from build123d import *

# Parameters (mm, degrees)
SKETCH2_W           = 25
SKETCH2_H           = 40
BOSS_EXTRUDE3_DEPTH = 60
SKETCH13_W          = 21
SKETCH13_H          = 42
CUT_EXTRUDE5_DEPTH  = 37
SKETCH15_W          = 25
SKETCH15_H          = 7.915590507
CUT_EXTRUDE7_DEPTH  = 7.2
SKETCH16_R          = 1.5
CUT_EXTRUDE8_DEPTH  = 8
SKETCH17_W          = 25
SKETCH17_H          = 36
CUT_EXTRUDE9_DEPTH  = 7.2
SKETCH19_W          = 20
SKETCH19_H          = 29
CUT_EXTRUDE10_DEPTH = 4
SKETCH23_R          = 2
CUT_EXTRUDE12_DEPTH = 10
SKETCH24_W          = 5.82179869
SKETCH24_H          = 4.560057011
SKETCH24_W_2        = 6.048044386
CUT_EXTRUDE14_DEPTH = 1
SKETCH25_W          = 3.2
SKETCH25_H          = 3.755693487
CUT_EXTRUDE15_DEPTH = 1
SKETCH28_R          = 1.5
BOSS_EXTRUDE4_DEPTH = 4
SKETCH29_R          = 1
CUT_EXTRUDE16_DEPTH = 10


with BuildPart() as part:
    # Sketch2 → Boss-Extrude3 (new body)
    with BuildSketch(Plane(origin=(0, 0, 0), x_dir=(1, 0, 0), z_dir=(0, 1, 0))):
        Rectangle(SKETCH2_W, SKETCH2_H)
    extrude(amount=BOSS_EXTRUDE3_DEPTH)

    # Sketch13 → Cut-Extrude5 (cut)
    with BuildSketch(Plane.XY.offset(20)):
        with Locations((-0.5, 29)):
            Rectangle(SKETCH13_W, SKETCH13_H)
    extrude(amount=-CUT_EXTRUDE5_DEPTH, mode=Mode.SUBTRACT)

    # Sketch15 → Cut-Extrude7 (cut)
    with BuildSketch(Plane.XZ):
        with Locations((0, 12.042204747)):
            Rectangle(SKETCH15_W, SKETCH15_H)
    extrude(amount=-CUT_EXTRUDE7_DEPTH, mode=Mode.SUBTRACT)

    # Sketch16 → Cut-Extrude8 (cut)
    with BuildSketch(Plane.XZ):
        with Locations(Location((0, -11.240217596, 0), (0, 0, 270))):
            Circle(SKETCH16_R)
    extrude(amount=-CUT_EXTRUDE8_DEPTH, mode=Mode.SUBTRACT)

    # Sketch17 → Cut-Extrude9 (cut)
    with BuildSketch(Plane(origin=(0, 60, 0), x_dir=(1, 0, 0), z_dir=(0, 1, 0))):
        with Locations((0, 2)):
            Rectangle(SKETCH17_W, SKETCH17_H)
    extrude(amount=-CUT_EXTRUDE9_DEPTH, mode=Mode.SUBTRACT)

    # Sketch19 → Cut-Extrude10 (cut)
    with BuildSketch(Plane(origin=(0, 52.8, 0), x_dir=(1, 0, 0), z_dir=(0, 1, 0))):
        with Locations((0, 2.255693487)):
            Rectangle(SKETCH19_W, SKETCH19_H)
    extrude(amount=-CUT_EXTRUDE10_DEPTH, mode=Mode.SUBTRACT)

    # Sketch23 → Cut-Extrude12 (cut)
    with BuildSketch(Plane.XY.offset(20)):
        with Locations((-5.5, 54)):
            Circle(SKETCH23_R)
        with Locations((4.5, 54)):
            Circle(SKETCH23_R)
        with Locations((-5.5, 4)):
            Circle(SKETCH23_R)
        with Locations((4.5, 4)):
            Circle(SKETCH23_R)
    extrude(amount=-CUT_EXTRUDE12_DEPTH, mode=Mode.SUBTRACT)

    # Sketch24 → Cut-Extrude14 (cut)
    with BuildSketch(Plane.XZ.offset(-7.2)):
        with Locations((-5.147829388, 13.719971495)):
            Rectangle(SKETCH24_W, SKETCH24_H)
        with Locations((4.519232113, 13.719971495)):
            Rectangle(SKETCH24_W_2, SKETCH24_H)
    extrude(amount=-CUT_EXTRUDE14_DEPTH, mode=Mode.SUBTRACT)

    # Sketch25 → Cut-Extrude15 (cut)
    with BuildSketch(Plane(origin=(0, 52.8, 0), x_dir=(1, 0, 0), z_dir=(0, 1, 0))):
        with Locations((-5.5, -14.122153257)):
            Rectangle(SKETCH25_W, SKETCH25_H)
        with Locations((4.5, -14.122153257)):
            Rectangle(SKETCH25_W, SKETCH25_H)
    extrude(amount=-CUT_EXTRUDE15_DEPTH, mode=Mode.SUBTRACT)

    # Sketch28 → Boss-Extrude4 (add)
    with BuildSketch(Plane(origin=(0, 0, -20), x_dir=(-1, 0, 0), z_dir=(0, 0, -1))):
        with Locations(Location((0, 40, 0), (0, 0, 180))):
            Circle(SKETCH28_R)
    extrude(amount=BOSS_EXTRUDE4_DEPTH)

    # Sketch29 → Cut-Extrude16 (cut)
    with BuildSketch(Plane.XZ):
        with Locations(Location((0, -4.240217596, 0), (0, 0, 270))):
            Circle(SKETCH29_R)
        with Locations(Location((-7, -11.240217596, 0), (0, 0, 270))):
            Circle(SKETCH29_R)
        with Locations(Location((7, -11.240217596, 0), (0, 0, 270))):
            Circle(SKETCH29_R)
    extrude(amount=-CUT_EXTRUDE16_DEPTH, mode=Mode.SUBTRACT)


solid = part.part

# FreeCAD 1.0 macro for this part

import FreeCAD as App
import Part
import Sketcher
from FreeCAD import Vector
Q = App.Units.Quantity

doc = App.newDocument("Part")
body = doc.addObject("PartDesign::Body", "Body")

# Sketch on XZ plane
sketch1 = body.newObject("Sketcher::SketchObject", "Sketch")
sketch1.AttachmentSupport = (doc.getObject("XZ_Plane"), [""])
sketch1.MapMode = "FlatFace"
sketch1.addGeometry(Part.LineSegment(Vector(-12.5, -20, 0), Vector(-12.5, 20, 0)), False)
sketch1.addGeometry(Part.LineSegment(Vector(-12.5, 20, 0), Vector(12.5, 20, 0)), False)
sketch1.addGeometry(Part.LineSegment(Vector(12.5, 20, 0), Vector(12.5, -20, 0)), False)
sketch1.addGeometry(Part.LineSegment(Vector(12.5, -20, 0), Vector(-12.5, -20, 0)), False)
sketch1.addConstraint(Sketcher.Constraint("Coincident", 0, 2, 1, 1))
sketch1.addConstraint(Sketcher.Constraint("Coincident", 1, 2, 2, 1))
sketch1.addConstraint(Sketcher.Constraint("Coincident", 2, 2, 3, 1))
sketch1.addConstraint(Sketcher.Constraint("Coincident", 3, 2, 0, 1))
sketch1.addConstraint(Sketcher.Constraint("Vertical", 0))
sketch1.addConstraint(Sketcher.Constraint("Horizontal", 1))
sketch1.addConstraint(Sketcher.Constraint("Vertical", 2))
sketch1.addConstraint(Sketcher.Constraint("Horizontal", 3))
sketch1.addConstraint(Sketcher.Constraint("Symmetric", 0, 2, 2, 2, -1, 1))
sketch1.addConstraint(Sketcher.Constraint("DistanceX", 1, 1, 1, 2, Q("25 mm")))
sketch1.addConstraint(Sketcher.Constraint("DistanceY", 0, 1, 0, 2, Q("40 mm")))
pad1 = body.newObject("PartDesign::Pad", "Pad")
pad1.Profile = sketch1
pad1.Length = 60
pad1.Reversed = True

# Sketch on XY plane
sketch2 = body.newObject("Sketcher::SketchObject", "Sketch001")
sketch2.AttachmentSupport = (doc.getObject("XY_Plane"), [""])
sketch2.MapMode = "FlatFace"
sketch2.AttachmentOffset = App.Placement(Vector(0, 0, 20), App.Rotation())
sketch2.addGeometry(Part.LineSegment(Vector(-11, 50, 0), Vector(-11, 8, 0)), False)
sketch2.addGeometry(Part.LineSegment(Vector(-11, 8, 0), Vector(10, 8, 0)), False)
sketch2.addGeometry(Part.LineSegment(Vector(10, 8, 0), Vector(10, 50, 0)), False)
sketch2.addGeometry(Part.LineSegment(Vector(10, 50, 0), Vector(-11, 50, 0)), False)
sketch2.addConstraint(Sketcher.Constraint("Coincident", 0, 2, 1, 1))
sketch2.addConstraint(Sketcher.Constraint("Coincident", 1, 2, 2, 1))
sketch2.addConstraint(Sketcher.Constraint("Coincident", 2, 2, 3, 1))
sketch2.addConstraint(Sketcher.Constraint("Coincident", 3, 2, 0, 1))
sketch2.addConstraint(Sketcher.Constraint("Vertical", 0))
sketch2.addConstraint(Sketcher.Constraint("Horizontal", 1))
sketch2.addConstraint(Sketcher.Constraint("Vertical", 2))
sketch2.addConstraint(Sketcher.Constraint("Horizontal", 3))
sketch2.addConstraint(Sketcher.Constraint("DistanceX", 1, 1, 1, 2, Q("21 mm")))
sketch2.addConstraint(Sketcher.Constraint("DistanceY", 0, 2, 0, 1, Q("42 mm")))
sketch2.addConstraint(Sketcher.Constraint("DistanceX", 0, 2, -1, 1, Q("11 mm")))
sketch2.addConstraint(Sketcher.Constraint("DistanceY", -1, 1, 0, 2, Q("8 mm")))
pocket1 = body.newObject("PartDesign::Pocket", "Pocket")
pocket1.Profile = sketch2
pocket1.Length = 37

# Sketch on XZ plane
sketch3 = body.newObject("Sketcher::SketchObject", "Sketch002")
sketch3.AttachmentSupport = (doc.getObject("XZ_Plane"), [""])
sketch3.MapMode = "FlatFace"
sketch3.addGeometry(Part.LineSegment(Vector(-12.5, 16, 0), Vector(-12.5, 8.084409, 0)), False)
sketch3.addGeometry(Part.LineSegment(Vector(-12.5, 8.084409, 0), Vector(12.5, 8.084409, 0)), False)
sketch3.addGeometry(Part.LineSegment(Vector(12.5, 8.084409, 0), Vector(12.5, 16, 0)), False)
sketch3.addGeometry(Part.LineSegment(Vector(12.5, 16, 0), Vector(-12.5, 16, 0)), False)
sketch3.addConstraint(Sketcher.Constraint("Coincident", 0, 2, 1, 1))
sketch3.addConstraint(Sketcher.Constraint("Coincident", 1, 2, 2, 1))
sketch3.addConstraint(Sketcher.Constraint("Coincident", 2, 2, 3, 1))
sketch3.addConstraint(Sketcher.Constraint("Coincident", 3, 2, 0, 1))
sketch3.addConstraint(Sketcher.Constraint("Vertical", 0))
sketch3.addConstraint(Sketcher.Constraint("Horizontal", 1))
sketch3.addConstraint(Sketcher.Constraint("Vertical", 2))
sketch3.addConstraint(Sketcher.Constraint("Horizontal", 3))
sketch3.addConstraint(Sketcher.Constraint("DistanceX", 1, 1, 1, 2, Q("25 mm")))
sketch3.addConstraint(Sketcher.Constraint("DistanceY", -1, 1, 2, 2, Q("16 mm")))
sketch3.addConstraint(Sketcher.Constraint("DistanceX", 0, 2, -1, 1, Q("12.5 mm")))
sketch3.addConstraint(Sketcher.Constraint("DistanceY", 0, 2, 0, 1, Q("7.915591 mm")))
pocket2 = body.newObject("PartDesign::Pocket", "Pocket001")
pocket2.Profile = sketch3
pocket2.Length = 7.2

# Sketch on XZ plane
sketch4 = body.newObject("Sketcher::SketchObject", "Sketch003")
sketch4.AttachmentSupport = (doc.getObject("XZ_Plane"), [""])
sketch4.MapMode = "FlatFace"
sketch4.addGeometry(Part.Circle(Vector(0, -11.240218, 0), Vector(0, 0, 1), 1.5), False)
sketch4.addConstraint(Sketcher.Constraint("PointOnObject", 0, 3, -2))
sketch4.addConstraint(Sketcher.Constraint("Diameter", 0, Q("3 mm")))
sketch4.addConstraint(Sketcher.Constraint("DistanceY", 0, 3, -1, 1, Q("11.240218 mm")))
pocket3 = body.newObject("PartDesign::Pocket", "Pocket002")
pocket3.Profile = sketch4
pocket3.Length = 8

# Sketch on XZ plane
sketch5 = body.newObject("Sketcher::SketchObject", "Sketch004")
sketch5.AttachmentSupport = (doc.getObject("XZ_Plane"), [""])
sketch5.MapMode = "FlatFace"
sketch5.AttachmentOffset = App.Placement(Vector(0, 0, -60), App.Rotation())
sketch5.addGeometry(Part.LineSegment(Vector(-12.5, -20, 0), Vector(-12.5, 16, 0)), False)
sketch5.addGeometry(Part.LineSegment(Vector(-12.5, 16, 0), Vector(12.5, 16, 0)), False)
sketch5.addGeometry(Part.LineSegment(Vector(12.5, 16, 0), Vector(12.5, -20, 0)), False)
sketch5.addGeometry(Part.LineSegment(Vector(12.5, -20, 0), Vector(-12.5, -20, 0)), False)
sketch5.addConstraint(Sketcher.Constraint("Coincident", 0, 2, 1, 1))
sketch5.addConstraint(Sketcher.Constraint("Coincident", 1, 2, 2, 1))
sketch5.addConstraint(Sketcher.Constraint("Coincident", 2, 2, 3, 1))
sketch5.addConstraint(Sketcher.Constraint("Coincident", 3, 2, 0, 1))
sketch5.addConstraint(Sketcher.Constraint("Vertical", 0))
sketch5.addConstraint(Sketcher.Constraint("Horizontal", 1))
sketch5.addConstraint(Sketcher.Constraint("Vertical", 2))
sketch5.addConstraint(Sketcher.Constraint("Horizontal", 3))
sketch5.addConstraint(Sketcher.Constraint("DistanceX", 1, 1, 1, 2, Q("25 mm")))
sketch5.addConstraint(Sketcher.Constraint("DistanceY", 0, 1, 0, 2, Q("36 mm")))
sketch5.addConstraint(Sketcher.Constraint("DistanceY", -1, 1, 0, 2, Q("16 mm")))
sketch5.addConstraint(Sketcher.Constraint("DistanceX", 0, 2, -1, 1, Q("12.5 mm")))
pocket4 = body.newObject("PartDesign::Pocket", "Pocket003")
pocket4.Profile = sketch5
pocket4.Length = 7.2
pocket4.Reversed = True

# Sketch on XZ plane
sketch6 = body.newObject("Sketcher::SketchObject", "Sketch005")
sketch6.AttachmentSupport = (doc.getObject("XZ_Plane"), [""])
sketch6.MapMode = "FlatFace"
sketch6.AttachmentOffset = App.Placement(Vector(0, 0, -52.8), App.Rotation())
sketch6.addGeometry(Part.LineSegment(Vector(-10, -16.755693, 0), Vector(-10, 12.244307, 0)), False)
sketch6.addGeometry(Part.LineSegment(Vector(-10, 12.244307, 0), Vector(10, 12.244307, 0)), False)
sketch6.addGeometry(Part.LineSegment(Vector(10, 12.244307, 0), Vector(10, -16.755693, 0)), False)
sketch6.addGeometry(Part.LineSegment(Vector(10, -16.755693, 0), Vector(-10, -16.755693, 0)), False)
sketch6.addConstraint(Sketcher.Constraint("Coincident", 0, 2, 1, 1))
sketch6.addConstraint(Sketcher.Constraint("Coincident", 1, 2, 2, 1))
sketch6.addConstraint(Sketcher.Constraint("Coincident", 2, 2, 3, 1))
sketch6.addConstraint(Sketcher.Constraint("Coincident", 3, 2, 0, 1))
sketch6.addConstraint(Sketcher.Constraint("Vertical", 0))
sketch6.addConstraint(Sketcher.Constraint("Horizontal", 1))
sketch6.addConstraint(Sketcher.Constraint("Vertical", 2))
sketch6.addConstraint(Sketcher.Constraint("Horizontal", 3))
sketch6.addConstraint(Sketcher.Constraint("DistanceX", 1, 1, 1, 2, Q("20 mm")))
sketch6.addConstraint(Sketcher.Constraint("DistanceY", 0, 1, 0, 2, Q("29 mm")))
sketch6.addConstraint(Sketcher.Constraint("DistanceX", 0, 2, -1, 1, Q("10 mm")))
sketch6.addConstraint(Sketcher.Constraint("DistanceY", -1, 1, 0, 2, Q("12.244307 mm")))
pocket5 = body.newObject("PartDesign::Pocket", "Pocket004")
pocket5.Profile = sketch6
pocket5.Length = 4
pocket5.Reversed = True

# Sketch on XY plane
sketch7 = body.newObject("Sketcher::SketchObject", "Sketch006")
sketch7.AttachmentSupport = (doc.getObject("XY_Plane"), [""])
sketch7.MapMode = "FlatFace"
sketch7.AttachmentOffset = App.Placement(Vector(0, 0, 20), App.Rotation())
sketch7.addGeometry(Part.Circle(Vector(-5.5, 54, 0), Vector(0, 0, 1), 2), False)
sketch7.addGeometry(Part.Circle(Vector(4.5, 54, 0), Vector(0, 0, 1), 2), False)
sketch7.addGeometry(Part.Circle(Vector(-5.5, 4, 0), Vector(0, 0, 1), 2), False)
sketch7.addGeometry(Part.Circle(Vector(4.5, 4, 0), Vector(0, 0, 1), 2), False)
sketch7.addConstraint(Sketcher.Constraint("Equal", 0, 1))
sketch7.addConstraint(Sketcher.Constraint("Equal", 1, 2))
sketch7.addConstraint(Sketcher.Constraint("Equal", 2, 3))
sketch7.addConstraint(Sketcher.Constraint("Horizontal", 0, 3, 1, 3))
sketch7.addConstraint(Sketcher.Constraint("Horizontal", 2, 3, 3, 3))
sketch7.addConstraint(Sketcher.Constraint("Vertical", 0, 3, 2, 3))
sketch7.addConstraint(Sketcher.Constraint("Vertical", 1, 3, 3, 3))
sketch7.addConstraint(Sketcher.Constraint("Diameter", 0, Q("4 mm")))
sketch7.addConstraint(Sketcher.Constraint("DistanceY", -1, 1, 0, 3, Q("54 mm")))
sketch7.addConstraint(Sketcher.Constraint("DistanceY", -1, 1, 2, 3, Q("4 mm")))
sketch7.addConstraint(Sketcher.Constraint("DistanceX", 0, 3, 1, 3, Q("10 mm")))
sketch7.addConstraint(Sketcher.Constraint("DistanceX", 0, 3, -1, 1, Q("5.5 mm")))
pocket6 = body.newObject("PartDesign::Pocket", "Pocket005")
pocket6.Profile = sketch7
pocket6.Length = 10

# Sketch on XZ plane
sketch8 = body.newObject("Sketcher::SketchObject", "Sketch007")
sketch8.AttachmentSupport = (doc.getObject("XZ_Plane"), [""])
sketch8.MapMode = "FlatFace"
sketch8.AttachmentOffset = App.Placement(Vector(0, 0, -7.2), App.Rotation())
sketch8.addGeometry(Part.LineSegment(Vector(-8.058729, 16, 0), Vector(-8.058729, 11.439943, 0)), False)
sketch8.addGeometry(Part.LineSegment(Vector(-8.058729, 11.439943, 0), Vector(-2.23693, 11.439943, 0)), False)
sketch8.addGeometry(Part.LineSegment(Vector(-2.23693, 11.439943, 0), Vector(-2.23693, 16, 0)), False)
sketch8.addGeometry(Part.LineSegment(Vector(-2.23693, 16, 0), Vector(-8.058729, 16, 0)), False)
sketch8.addGeometry(Part.LineSegment(Vector(1.49521, 16, 0), Vector(1.49521, 11.439943, 0)), False)
sketch8.addGeometry(Part.LineSegment(Vector(1.49521, 11.439943, 0), Vector(7.543254, 11.439943, 0)), False)
sketch8.addGeometry(Part.LineSegment(Vector(7.543254, 11.439943, 0), Vector(7.543254, 16, 0)), False)
sketch8.addGeometry(Part.LineSegment(Vector(7.543254, 16, 0), Vector(1.49521, 16, 0)), False)
sketch8.addConstraint(Sketcher.Constraint("Coincident", 0, 2, 1, 1))
sketch8.addConstraint(Sketcher.Constraint("Coincident", 1, 2, 2, 1))
sketch8.addConstraint(Sketcher.Constraint("Coincident", 2, 2, 3, 1))
sketch8.addConstraint(Sketcher.Constraint("Coincident", 3, 2, 0, 1))
sketch8.addConstraint(Sketcher.Constraint("Coincident", 4, 2, 5, 1))
sketch8.addConstraint(Sketcher.Constraint("Coincident", 5, 2, 6, 1))
sketch8.addConstraint(Sketcher.Constraint("Coincident", 6, 2, 7, 1))
sketch8.addConstraint(Sketcher.Constraint("Coincident", 7, 2, 4, 1))
sketch8.addConstraint(Sketcher.Constraint("Vertical", 0))
sketch8.addConstraint(Sketcher.Constraint("Horizontal", 1))
sketch8.addConstraint(Sketcher.Constraint("Vertical", 2))
sketch8.addConstraint(Sketcher.Constraint("Horizontal", 3))
sketch8.addConstraint(Sketcher.Constraint("Vertical", 4))
sketch8.addConstraint(Sketcher.Constraint("Horizontal", 5))
sketch8.addConstraint(Sketcher.Constraint("Vertical", 6))
sketch8.addConstraint(Sketcher.Constraint("Horizontal", 7))
sketch8.addConstraint(Sketcher.Constraint("Horizontal", 1, 2, 4, 2))
sketch8.addConstraint(Sketcher.Constraint("Horizontal", 3, 2, 6, 2))
sketch8.addConstraint(Sketcher.Constraint("DistanceY", -1, 1, 2, 2, Q("16 mm")))
sketch8.addConstraint(Sketcher.Constraint("DistanceX", 1, 1, 1, 2, Q("5.821799 mm")))
sketch8.addConstraint(Sketcher.Constraint("DistanceX", 5, 1, 5, 2, Q("6.048044 mm")))
sketch8.addConstraint(Sketcher.Constraint("DistanceY", 0, 2, 0, 1, Q("4.560057 mm")))
sketch8.addConstraint(Sketcher.Constraint("DistanceX", 0, 2, -1, 1, Q("8.058729 mm")))
sketch8.addConstraint(Sketcher.Constraint("DistanceX", -1, 1, 4, 2, Q("1.49521 mm")))
pocket7 = body.newObject("PartDesign::Pocket", "Pocket006")
pocket7.Profile = sketch8
pocket7.Length = 1

# Sketch on XZ plane
sketch9 = body.newObject("Sketcher::SketchObject", "Sketch008")
sketch9.AttachmentSupport = (doc.getObject("XZ_Plane"), [""])
sketch9.MapMode = "FlatFace"
sketch9.AttachmentOffset = App.Placement(Vector(0, 0, -52.8), App.Rotation())
sketch9.addGeometry(Part.LineSegment(Vector(-7.1, 12.244307, 0), Vector(-7.1, 16, 0)), False)
sketch9.addGeometry(Part.LineSegment(Vector(-7.1, 16, 0), Vector(-3.9, 16, 0)), False)
sketch9.addGeometry(Part.LineSegment(Vector(-3.9, 16, 0), Vector(-3.9, 12.244307, 0)), False)
sketch9.addGeometry(Part.LineSegment(Vector(-3.9, 12.244307, 0), Vector(-7.1, 12.244307, 0)), False)
sketch9.addGeometry(Part.LineSegment(Vector(2.9, 12.244307, 0), Vector(2.9, 16, 0)), False)
sketch9.addGeometry(Part.LineSegment(Vector(2.9, 16, 0), Vector(6.1, 16, 0)), False)
sketch9.addGeometry(Part.LineSegment(Vector(6.1, 16, 0), Vector(6.1, 12.244307, 0)), False)
sketch9.addGeometry(Part.LineSegment(Vector(6.1, 12.244307, 0), Vector(2.9, 12.244307, 0)), False)
sketch9.addConstraint(Sketcher.Constraint("Coincident", 0, 2, 1, 1))
sketch9.addConstraint(Sketcher.Constraint("Coincident", 1, 2, 2, 1))
sketch9.addConstraint(Sketcher.Constraint("Coincident", 2, 2, 3, 1))
sketch9.addConstraint(Sketcher.Constraint("Coincident", 3, 2, 0, 1))
sketch9.addConstraint(Sketcher.Constraint("Coincident", 4, 2, 5, 1))
sketch9.addConstraint(Sketcher.Constraint("Coincident", 5, 2, 6, 1))
sketch9.addConstraint(Sketcher.Constraint("Coincident", 6, 2, 7, 1))
sketch9.addConstraint(Sketcher.Constraint("Coincident", 7, 2, 4, 1))
sketch9.addConstraint(Sketcher.Constraint("Vertical", 0))
sketch9.addConstraint(Sketcher.Constraint("Horizontal", 1))
sketch9.addConstraint(Sketcher.Constraint("Vertical", 2))
sketch9.addConstraint(Sketcher.Constraint("Horizontal", 3))
sketch9.addConstraint(Sketcher.Constraint("Vertical", 4))
sketch9.addConstraint(Sketcher.Constraint("Horizontal", 5))
sketch9.addConstraint(Sketcher.Constraint("Vertical", 6))
sketch9.addConstraint(Sketcher.Constraint("Horizontal", 7))
sketch9.addConstraint(Sketcher.Constraint("Horizontal", 1, 2, 4, 2))
sketch9.addConstraint(Sketcher.Constraint("Horizontal", 3, 2, 6, 2))
sketch9.addConstraint(Sketcher.Constraint("Equal", 3, 5))
sketch9.addConstraint(Sketcher.Constraint("DistanceX", 1, 1, 1, 2, Q("3.2 mm")))
sketch9.addConstraint(Sketcher.Constraint("DistanceY", -1, 1, 0, 2, Q("16 mm")))
sketch9.addConstraint(Sketcher.Constraint("DistanceX", 0, 2, 4, 2, Q("10 mm")))
sketch9.addConstraint(Sketcher.Constraint("DistanceX", 0, 2, -1, 1, Q("7.1 mm")))
sketch9.addConstraint(Sketcher.Constraint("DistanceY", 0, 1, 0, 2, Q("3.755693 mm")))
pocket8 = body.newObject("PartDesign::Pocket", "Pocket007")
pocket8.Profile = sketch9
pocket8.Length = 1
pocket8.Reversed = True

# Sketch on XY plane
sketch10 = body.newObject("Sketcher::SketchObject", "Sketch009")
sketch10.AttachmentSupport = (doc.getObject("XY_Plane"), [""])
sketch10.MapMode = "FlatFace"
sketch10.AttachmentOffset = App.Placement(Vector(0, 0, -20), App.Rotation())
sketch10.addGeometry(Part.Circle(Vector(0, 40, 0), Vector(0, 0, 1), 1.5), False)
sketch10.addConstraint(Sketcher.Constraint("PointOnObject", 0, 3, -2))
sketch10.addConstraint(Sketcher.Constraint("Diameter", 0, Q("3 mm")))
sketch10.addConstraint(Sketcher.Constraint("DistanceY", -1, 1, 0, 3, Q("40 mm")))
pad2 = body.newObject("PartDesign::Pad", "Pad001")
pad2.Profile = sketch10
pad2.Length = 4
pad2.Reversed = True

# Sketch on XZ plane
sketch11 = body.newObject("Sketcher::SketchObject", "Sketch010")
sketch11.AttachmentSupport = (doc.getObject("XZ_Plane"), [""])
sketch11.MapMode = "FlatFace"
sketch11.addGeometry(Part.Circle(Vector(0, -4.240218, 0), Vector(0, 0, 1), 1), False)
sketch11.addGeometry(Part.Circle(Vector(-7, -11.240218, 0), Vector(0, 0, 1), 1), False)
sketch11.addGeometry(Part.Circle(Vector(7, -11.240218, 0), Vector(0, 0, 1), 1), False)
sketch11.addConstraint(Sketcher.Constraint("Equal", 0, 1))
sketch11.addConstraint(Sketcher.Constraint("Equal", 1, 2))
sketch11.addConstraint(Sketcher.Constraint("Symmetric", 1, 3, 2, 3, -2))
sketch11.addConstraint(Sketcher.Constraint("PointOnObject", 0, 3, -2))
sketch11.addConstraint(Sketcher.Constraint("Diameter", 0, Q("2 mm")))
sketch11.addConstraint(Sketcher.Constraint("DistanceX", 1, 3, -1, 1, Q("7 mm")))
sketch11.addConstraint(Sketcher.Constraint("DistanceY", 1, 3, 0, 3, Q("7 mm")))
sketch11.addConstraint(Sketcher.Constraint("DistanceY", 0, 3, -1, 1, Q("4.240218 mm")))
pocket9 = body.newObject("PartDesign::Pocket", "Pocket008")
pocket9.Profile = sketch11
pocket9.Length = 10

doc.recompute()
